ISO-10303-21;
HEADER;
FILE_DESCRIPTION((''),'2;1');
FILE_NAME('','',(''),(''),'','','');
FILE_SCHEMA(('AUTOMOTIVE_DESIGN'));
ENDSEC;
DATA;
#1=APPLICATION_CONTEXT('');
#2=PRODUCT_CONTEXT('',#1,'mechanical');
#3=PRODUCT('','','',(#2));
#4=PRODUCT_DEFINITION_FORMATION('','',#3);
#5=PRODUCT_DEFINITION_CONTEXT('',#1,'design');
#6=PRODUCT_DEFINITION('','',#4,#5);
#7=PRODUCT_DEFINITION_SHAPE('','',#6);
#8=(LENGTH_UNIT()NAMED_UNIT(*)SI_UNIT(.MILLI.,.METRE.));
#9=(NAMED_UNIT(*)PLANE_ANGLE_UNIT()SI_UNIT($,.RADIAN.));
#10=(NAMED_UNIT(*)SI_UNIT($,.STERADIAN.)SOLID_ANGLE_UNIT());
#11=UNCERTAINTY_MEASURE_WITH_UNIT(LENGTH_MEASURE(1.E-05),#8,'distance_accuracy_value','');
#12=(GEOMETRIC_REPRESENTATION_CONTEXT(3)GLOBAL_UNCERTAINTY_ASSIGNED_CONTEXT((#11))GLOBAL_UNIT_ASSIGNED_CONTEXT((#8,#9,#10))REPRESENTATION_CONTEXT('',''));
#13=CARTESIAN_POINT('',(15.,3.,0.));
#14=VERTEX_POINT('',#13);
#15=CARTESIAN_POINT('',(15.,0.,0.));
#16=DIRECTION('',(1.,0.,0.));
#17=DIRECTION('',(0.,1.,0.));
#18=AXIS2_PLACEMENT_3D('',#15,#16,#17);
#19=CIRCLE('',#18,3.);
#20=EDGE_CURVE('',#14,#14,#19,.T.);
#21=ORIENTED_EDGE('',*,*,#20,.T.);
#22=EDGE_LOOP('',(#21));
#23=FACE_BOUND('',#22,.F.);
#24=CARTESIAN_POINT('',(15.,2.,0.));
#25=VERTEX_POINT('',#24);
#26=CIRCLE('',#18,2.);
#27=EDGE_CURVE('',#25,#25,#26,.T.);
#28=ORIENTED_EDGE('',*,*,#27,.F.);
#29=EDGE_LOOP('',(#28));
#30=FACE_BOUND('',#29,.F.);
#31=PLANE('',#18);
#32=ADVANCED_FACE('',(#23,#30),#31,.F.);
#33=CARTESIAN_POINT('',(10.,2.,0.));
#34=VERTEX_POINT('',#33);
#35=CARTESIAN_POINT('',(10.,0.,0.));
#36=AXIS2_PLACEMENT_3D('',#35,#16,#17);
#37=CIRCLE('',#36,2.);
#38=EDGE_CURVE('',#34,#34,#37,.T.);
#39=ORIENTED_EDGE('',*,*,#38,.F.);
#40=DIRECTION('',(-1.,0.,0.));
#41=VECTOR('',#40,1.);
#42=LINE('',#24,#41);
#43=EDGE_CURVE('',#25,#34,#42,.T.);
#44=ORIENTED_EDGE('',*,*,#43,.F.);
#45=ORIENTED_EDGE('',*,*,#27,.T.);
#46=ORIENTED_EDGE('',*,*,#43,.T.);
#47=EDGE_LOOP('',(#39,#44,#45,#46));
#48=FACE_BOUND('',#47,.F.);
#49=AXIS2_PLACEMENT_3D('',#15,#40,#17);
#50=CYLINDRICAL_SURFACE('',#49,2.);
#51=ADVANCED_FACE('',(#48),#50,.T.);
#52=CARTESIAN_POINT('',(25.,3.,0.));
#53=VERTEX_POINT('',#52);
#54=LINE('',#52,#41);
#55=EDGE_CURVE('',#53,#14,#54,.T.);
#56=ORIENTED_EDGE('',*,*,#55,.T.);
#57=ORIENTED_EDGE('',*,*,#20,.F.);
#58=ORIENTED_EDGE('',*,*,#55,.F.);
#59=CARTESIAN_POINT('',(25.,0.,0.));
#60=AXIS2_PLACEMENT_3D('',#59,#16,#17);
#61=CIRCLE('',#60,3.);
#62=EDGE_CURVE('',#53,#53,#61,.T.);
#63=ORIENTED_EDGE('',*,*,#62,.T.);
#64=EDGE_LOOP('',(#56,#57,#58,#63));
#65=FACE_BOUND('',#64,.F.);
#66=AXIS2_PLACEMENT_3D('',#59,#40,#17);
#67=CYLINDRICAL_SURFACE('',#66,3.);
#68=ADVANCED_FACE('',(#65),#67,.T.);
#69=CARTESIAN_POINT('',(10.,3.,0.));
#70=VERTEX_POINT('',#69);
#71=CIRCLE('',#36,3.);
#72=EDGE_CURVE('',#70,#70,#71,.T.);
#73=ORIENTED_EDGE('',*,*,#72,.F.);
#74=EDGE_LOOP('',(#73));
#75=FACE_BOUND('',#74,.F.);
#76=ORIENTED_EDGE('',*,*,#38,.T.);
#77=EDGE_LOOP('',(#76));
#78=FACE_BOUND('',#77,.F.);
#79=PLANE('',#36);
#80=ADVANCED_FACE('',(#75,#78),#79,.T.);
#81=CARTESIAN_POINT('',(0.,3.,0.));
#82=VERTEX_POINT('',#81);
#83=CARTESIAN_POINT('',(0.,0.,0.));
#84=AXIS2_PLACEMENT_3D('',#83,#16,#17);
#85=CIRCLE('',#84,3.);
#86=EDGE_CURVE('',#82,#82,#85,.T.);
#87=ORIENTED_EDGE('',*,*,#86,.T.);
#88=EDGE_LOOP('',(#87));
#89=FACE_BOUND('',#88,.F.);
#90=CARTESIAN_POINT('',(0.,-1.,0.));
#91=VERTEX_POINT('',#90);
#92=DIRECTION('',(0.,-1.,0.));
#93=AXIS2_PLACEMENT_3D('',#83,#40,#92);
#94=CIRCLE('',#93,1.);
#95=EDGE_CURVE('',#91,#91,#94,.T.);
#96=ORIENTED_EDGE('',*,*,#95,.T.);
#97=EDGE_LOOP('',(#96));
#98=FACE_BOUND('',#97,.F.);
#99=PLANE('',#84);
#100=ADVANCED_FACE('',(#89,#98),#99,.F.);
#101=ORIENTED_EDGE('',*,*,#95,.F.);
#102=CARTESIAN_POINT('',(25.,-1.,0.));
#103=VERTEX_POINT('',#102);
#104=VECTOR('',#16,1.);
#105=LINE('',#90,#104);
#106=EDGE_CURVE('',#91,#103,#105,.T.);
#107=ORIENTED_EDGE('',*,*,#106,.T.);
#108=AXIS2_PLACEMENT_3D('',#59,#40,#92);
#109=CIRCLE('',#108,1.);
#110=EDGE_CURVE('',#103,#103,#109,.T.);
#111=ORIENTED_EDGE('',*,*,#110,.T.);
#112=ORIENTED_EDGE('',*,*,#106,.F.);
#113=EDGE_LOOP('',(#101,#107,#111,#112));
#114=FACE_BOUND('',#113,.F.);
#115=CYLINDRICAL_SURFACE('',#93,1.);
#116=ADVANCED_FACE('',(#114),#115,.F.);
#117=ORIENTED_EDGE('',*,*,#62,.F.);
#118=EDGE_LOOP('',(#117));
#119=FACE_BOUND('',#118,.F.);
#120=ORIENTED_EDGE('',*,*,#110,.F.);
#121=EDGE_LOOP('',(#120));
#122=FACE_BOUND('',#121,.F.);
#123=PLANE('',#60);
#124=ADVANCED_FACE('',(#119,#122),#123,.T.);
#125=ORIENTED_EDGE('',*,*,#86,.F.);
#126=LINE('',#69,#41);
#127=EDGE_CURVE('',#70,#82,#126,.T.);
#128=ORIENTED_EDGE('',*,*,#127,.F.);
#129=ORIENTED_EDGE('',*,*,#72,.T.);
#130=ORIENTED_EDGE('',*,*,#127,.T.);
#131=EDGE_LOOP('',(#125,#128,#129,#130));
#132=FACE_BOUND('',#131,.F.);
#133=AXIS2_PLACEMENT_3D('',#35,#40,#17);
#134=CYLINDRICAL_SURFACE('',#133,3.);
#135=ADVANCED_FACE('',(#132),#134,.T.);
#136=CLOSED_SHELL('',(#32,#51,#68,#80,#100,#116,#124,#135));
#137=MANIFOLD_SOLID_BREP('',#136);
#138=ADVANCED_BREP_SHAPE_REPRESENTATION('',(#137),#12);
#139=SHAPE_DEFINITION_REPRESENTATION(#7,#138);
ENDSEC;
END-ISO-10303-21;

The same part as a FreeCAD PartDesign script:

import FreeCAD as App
import Part
import Sketcher
Q = App.Units.Quantity

doc = App.newDocument("Part")
params = doc.addObject("Spreadsheet::Sheet", "Params")
for row, (alias, value) in enumerate([
    ("sketch1_width", "25 mm"),
    ("sketch1_width2", "10 mm"),
    ("sketch1_height", "3 mm"),
    ("sketch1_height2", "1 mm"),
    ("revolution_angle", "360 deg"),
    ("sketch2_diameter", "2 mm"),
], start=1):
    params.set(f"A{row}", alias)
    params.set(f"B{row}", "=" + value)
    params.setAlias(f"B{row}", alias)

body = doc.addObject("PartDesign::Body", "Body")

# Sketch on XY plane
sketch1 = body.newObject("Sketcher::SketchObject", "Sketch")
sketch1.AttachmentSupport = (doc.getObject("XY_Plane"), [""])
sketch1.MapMode = "FlatFace"
sketch1.addGeometry(Part.LineSegment(App.Vector(0, 3, 0), App.Vector(0, 0, 0)), False)
sketch1.addGeometry(Part.LineSegment(App.Vector(0, 0, 0), App.Vector(25, 0, 0)), False)
sketch1.addGeometry(Part.LineSegment(App.Vector(25, 0, 0), App.Vector(25, 3, 0)), False)
sketch1.addGeometry(Part.LineSegment(App.Vector(25, 3, 0), App.Vector(15, 3, 0)), False)
sketch1.addGeometry(Part.LineSegment(App.Vector(15, 3, 0), App.Vector(15, 2, 0)), False)
sketch1.addGeometry(Part.LineSegment(App.Vector(15, 2, 0), App.Vector(10, 2, 0)), False)
sketch1.addGeometry(Part.LineSegment(App.Vector(10, 2, 0), App.Vector(10, 3, 0)), False)
sketch1.addGeometry(Part.LineSegment(App.Vector(10, 3, 0), App.Vector(0, 3, 0)), False)
sketch1.addConstraint(Sketcher.Constraint("Coincident", 0, 2, 1, 1))
sketch1.addConstraint(Sketcher.Constraint("Coincident", 1, 2, 2, 1))
sketch1.addConstraint(Sketcher.Constraint("Coincident", 2, 2, 3, 1))
sketch1.addConstraint(Sketcher.Constraint("Coincident", 3, 2, 4, 1))
sketch1.addConstraint(Sketcher.Constraint("Coincident", 4, 2, 5, 1))
sketch1.addConstraint(Sketcher.Constraint("Coincident", 5, 2, 6, 1))
sketch1.addConstraint(Sketcher.Constraint("Coincident", 6, 2, 7, 1))
sketch1.addConstraint(Sketcher.Constraint("Coincident", 7, 2, 0, 1))
sketch1.addConstraint(Sketcher.Constraint("Vertical", 0))
sketch1.addConstraint(Sketcher.Constraint("Horizontal", 1))
sketch1.addConstraint(Sketcher.Constraint("Vertical", 2))
sketch1.addConstraint(Sketcher.Constraint("Horizontal", 3))
sketch1.addConstraint(Sketcher.Constraint("Vertical", 4))
sketch1.addConstraint(Sketcher.Constraint("Horizontal", 5))
sketch1.addConstraint(Sketcher.Constraint("Vertical", 6))
sketch1.addConstraint(Sketcher.Constraint("Horizontal", 7))
sketch1.addConstraint(Sketcher.Constraint("Coincident", 0, 2, -1, 1))
sketch1.addConstraint(Sketcher.Constraint("Horizontal", 3, 2, 6, 2))
sketch1.addConstraint(Sketcher.Constraint("Equal", 3, 7))
sketch1.addConstraint(Sketcher.Constraint("DistanceX", 1, 1, 1, 2, Q("25 mm")))
sketch1.addConstraint(Sketcher.Constraint("DistanceX", 3, 2, 3, 1, Q("10 mm")))
sketch1.addConstraint(Sketcher.Constraint("DistanceY", 0, 2, 0, 1, Q("3 mm")))
sketch1.addConstraint(Sketcher.Constraint("DistanceY", 4, 2, 4, 1, Q("1 mm")))
sketch1.setExpression("Constraints[19]", "Params.sketch1_width")
sketch1.setExpression("Constraints[20]", "Params.sketch1_width2")
sketch1.setExpression("Constraints[21]", "Params.sketch1_height")
sketch1.setExpression("Constraints[22]", "Params.sketch1_height2")
revolution = body.newObject("PartDesign::Revolution", "Revolution")
revolution.Profile = sketch1
revolution.ReferenceAxis = (sketch1, ["H_Axis"])
revolution.setExpression("Angle", "Params.revolution_angle")

# Sketch on YZ plane
sketch2 = body.newObject("Sketcher::SketchObject", "Sketch001")
sketch2.AttachmentSupport = (doc.getObject("YZ_Plane"), [""])
sketch2.MapMode = "FlatFace"
sketch2.addGeometry(Part.Circle(App.Vector(0, 0, 0), App.Vector(0, 0, 1), 1), False)
sketch2.addConstraint(Sketcher.Constraint("Coincident", 0, 3, -1, 1))
sketch2.addConstraint(Sketcher.Constraint("Diameter", 0, Q("2 mm")))
sketch2.setExpression("Constraints[1]", "Params.sketch2_diameter")
pocket1 = body.newObject("PartDesign::Pocket", "Pocket")
pocket1.Profile = sketch2
pocket1.Type = "ThroughAll"
pocket1.Reversed = True

doc.recompute()
